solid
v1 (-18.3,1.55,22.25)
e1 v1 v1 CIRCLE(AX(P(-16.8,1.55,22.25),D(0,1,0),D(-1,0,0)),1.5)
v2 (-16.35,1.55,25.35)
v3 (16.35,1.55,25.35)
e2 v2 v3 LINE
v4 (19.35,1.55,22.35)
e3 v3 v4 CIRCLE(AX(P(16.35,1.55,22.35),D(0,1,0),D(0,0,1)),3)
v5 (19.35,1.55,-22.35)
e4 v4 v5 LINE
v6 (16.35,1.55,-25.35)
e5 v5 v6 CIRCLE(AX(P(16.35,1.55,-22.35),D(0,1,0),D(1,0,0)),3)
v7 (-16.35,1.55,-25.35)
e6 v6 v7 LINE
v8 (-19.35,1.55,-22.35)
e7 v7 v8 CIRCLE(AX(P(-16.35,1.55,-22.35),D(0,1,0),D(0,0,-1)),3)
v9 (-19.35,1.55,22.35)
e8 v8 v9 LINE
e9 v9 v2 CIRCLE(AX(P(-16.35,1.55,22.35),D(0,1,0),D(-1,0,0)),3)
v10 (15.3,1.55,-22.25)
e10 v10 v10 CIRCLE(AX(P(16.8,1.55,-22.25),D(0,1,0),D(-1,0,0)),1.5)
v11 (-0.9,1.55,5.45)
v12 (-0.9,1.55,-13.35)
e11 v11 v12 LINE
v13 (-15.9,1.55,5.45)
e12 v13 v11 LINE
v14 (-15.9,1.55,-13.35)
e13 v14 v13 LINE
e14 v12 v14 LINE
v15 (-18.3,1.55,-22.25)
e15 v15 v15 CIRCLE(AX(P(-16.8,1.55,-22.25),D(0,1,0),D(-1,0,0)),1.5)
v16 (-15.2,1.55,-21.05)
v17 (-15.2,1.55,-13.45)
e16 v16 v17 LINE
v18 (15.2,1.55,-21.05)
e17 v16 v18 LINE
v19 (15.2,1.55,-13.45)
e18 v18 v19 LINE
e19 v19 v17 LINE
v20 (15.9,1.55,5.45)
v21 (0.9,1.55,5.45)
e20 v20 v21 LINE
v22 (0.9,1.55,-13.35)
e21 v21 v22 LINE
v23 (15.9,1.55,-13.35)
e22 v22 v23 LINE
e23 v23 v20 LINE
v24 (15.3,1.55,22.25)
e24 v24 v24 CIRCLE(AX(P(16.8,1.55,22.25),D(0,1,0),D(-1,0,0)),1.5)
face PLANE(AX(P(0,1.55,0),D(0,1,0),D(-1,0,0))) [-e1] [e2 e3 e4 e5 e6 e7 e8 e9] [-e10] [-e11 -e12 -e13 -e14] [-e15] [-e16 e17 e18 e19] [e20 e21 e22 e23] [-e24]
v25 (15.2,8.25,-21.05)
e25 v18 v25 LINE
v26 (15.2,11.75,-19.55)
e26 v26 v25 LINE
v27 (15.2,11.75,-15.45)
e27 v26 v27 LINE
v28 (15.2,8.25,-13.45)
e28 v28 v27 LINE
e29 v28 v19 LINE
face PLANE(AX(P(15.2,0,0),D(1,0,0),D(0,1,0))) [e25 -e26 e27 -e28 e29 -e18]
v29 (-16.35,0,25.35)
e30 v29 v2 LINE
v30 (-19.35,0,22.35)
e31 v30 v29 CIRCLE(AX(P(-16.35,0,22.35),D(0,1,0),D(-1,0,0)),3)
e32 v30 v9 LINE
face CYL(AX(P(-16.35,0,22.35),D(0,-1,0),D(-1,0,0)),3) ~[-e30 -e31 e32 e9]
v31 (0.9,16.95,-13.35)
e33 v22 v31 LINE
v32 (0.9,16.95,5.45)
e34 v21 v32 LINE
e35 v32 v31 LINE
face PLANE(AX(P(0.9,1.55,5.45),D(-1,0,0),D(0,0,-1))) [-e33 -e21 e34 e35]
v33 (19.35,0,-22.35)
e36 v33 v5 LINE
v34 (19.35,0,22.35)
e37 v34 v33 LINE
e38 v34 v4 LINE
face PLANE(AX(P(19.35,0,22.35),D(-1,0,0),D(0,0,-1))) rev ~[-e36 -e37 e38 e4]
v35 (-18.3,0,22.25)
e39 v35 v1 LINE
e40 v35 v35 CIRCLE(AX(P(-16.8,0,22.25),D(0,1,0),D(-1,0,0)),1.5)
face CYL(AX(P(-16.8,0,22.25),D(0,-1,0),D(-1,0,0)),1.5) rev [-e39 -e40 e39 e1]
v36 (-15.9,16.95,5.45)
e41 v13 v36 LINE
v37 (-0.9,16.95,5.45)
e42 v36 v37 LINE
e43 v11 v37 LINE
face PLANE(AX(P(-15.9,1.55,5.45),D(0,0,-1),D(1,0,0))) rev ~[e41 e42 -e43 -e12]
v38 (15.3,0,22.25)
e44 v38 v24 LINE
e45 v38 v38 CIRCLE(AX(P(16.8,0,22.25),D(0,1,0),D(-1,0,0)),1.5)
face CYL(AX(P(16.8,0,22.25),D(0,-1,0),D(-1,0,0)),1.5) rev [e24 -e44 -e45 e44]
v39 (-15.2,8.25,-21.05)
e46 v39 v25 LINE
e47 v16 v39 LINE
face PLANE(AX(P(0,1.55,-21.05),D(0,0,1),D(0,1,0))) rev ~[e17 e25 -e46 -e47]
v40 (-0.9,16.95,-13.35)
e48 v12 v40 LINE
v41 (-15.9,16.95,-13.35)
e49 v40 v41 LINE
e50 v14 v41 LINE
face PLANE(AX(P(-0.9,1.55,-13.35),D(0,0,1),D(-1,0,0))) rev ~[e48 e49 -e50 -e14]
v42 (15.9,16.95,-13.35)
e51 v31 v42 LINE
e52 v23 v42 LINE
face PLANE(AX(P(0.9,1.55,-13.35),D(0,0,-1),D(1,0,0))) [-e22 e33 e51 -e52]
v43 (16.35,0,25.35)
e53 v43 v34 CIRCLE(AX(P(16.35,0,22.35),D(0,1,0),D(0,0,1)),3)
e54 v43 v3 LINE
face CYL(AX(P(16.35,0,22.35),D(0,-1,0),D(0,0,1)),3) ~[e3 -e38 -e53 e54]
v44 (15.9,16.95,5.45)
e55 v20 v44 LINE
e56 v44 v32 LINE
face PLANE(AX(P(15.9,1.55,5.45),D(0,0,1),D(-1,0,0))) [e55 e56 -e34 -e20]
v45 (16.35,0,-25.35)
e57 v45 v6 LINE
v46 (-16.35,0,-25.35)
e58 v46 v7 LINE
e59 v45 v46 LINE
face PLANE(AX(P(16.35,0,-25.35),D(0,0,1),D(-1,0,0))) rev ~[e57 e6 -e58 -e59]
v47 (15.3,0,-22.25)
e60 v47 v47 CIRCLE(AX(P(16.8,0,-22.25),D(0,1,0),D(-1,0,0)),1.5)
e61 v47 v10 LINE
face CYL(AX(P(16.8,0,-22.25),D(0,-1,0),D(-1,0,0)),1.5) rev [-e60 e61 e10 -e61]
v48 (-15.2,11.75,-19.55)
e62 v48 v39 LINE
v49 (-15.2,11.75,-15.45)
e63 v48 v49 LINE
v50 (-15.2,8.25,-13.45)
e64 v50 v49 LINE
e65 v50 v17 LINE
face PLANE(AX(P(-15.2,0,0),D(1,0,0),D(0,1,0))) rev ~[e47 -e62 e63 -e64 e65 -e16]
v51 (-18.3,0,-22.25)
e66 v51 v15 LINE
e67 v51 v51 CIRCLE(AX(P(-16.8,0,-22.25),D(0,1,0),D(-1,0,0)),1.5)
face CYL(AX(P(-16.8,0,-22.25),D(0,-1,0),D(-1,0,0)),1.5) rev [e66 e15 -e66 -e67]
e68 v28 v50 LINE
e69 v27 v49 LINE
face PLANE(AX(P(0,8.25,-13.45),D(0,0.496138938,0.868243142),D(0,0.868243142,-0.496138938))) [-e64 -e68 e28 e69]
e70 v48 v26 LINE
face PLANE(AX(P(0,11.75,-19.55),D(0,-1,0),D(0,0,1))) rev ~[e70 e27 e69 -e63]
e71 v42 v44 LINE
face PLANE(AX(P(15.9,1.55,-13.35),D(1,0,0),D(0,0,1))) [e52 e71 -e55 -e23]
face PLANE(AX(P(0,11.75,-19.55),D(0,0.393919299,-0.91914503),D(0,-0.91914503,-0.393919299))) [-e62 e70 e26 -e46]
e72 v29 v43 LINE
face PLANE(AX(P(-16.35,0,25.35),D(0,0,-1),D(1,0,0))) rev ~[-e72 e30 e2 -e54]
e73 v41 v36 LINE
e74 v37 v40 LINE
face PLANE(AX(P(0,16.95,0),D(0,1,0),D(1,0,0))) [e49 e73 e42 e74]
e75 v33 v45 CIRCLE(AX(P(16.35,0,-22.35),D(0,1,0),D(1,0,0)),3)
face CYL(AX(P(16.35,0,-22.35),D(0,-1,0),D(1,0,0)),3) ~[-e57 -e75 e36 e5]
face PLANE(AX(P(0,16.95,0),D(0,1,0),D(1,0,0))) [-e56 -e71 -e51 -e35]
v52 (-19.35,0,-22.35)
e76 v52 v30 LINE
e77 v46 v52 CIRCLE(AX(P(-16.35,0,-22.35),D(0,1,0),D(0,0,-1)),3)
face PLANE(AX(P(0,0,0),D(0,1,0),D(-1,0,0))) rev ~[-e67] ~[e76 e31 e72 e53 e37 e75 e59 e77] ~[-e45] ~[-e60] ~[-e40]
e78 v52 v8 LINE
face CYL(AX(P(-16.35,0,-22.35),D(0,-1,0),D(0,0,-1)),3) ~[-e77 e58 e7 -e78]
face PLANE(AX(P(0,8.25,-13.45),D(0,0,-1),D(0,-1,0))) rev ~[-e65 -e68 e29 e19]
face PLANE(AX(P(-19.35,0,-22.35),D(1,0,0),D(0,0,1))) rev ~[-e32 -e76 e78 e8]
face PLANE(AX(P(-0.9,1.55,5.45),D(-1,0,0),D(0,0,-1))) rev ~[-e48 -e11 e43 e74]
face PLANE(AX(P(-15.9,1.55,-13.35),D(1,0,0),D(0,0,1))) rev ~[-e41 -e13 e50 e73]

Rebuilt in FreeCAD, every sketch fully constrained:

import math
import FreeCAD as App
import Part
import Sketcher

V = App.Vector


def add_polygon(sketch, points):
    """Adds a closed chain of lines whose ends are joined by coincident constraints."""
    first, n = sketch.GeometryCount, len(points)
    for a, b in zip(points, points[1:] + points[:1]):
        sketch.addGeometry(Part.LineSegment(App.Vector(*a, 0), App.Vector(*b, 0)), False)
    for i in range(n):
        sketch.addConstraint(Sketcher.Constraint("Coincident", first + i, 2, first + (i + 1) % n, 1))

doc = App.newDocument("Part")
body = doc.addObject("PartDesign::Body", "Body")

# Sketch on XZ plane
sketch1 = doc.addObject("Sketcher::SketchObject", "Sketch")
body.addObject(sketch1)
sketch1.AttachmentSupport = (doc.XZ_Plane, [""])
sketch1.MapMode = "FlatFace"
sketch1.addGeometry([
    Part.ArcOfCircle(Part.Circle(V(16.4, -22.4, 0), V(0, 0, 1), 3), math.radians(-90), math.radians(0)),  # 0
    Part.LineSegment(V(16.4, -25.4, 0), V(-16.4, -25.4, 0)),  # 1
    Part.ArcOfCircle(Part.Circle(V(-16.4, -22.4, 0), V(0, 0, 1), 3), math.radians(180), math.radians(270)),  # 2
    Part.LineSegment(V(-19.4, -22.4, 0), V(-19.4, 22.4, 0)),  # 3
    Part.ArcOfCircle(Part.Circle(V(-16.4, 22.4, 0), V(0, 0, 1), 3), math.radians(90), math.radians(180)),  # 4
    Part.LineSegment(V(-16.4, 25.4, 0), V(16.4, 25.4, 0)),  # 5
    Part.ArcOfCircle(Part.Circle(V(16.4, 22.4, 0), V(0, 0, 1), 3), math.radians(0), math.radians(90)),  # 6
    Part.LineSegment(V(19.4, 22.4, 0), V(19.4, -22.4, 0)),  # 7
    Part.Circle(V(16.8, -22.2, 0), V(0, 0, 1), 1.5),  # 8
    Part.Circle(V(-16.8, -22.2, 0), V(0, 0, 1), 1.5),  # 9
    Part.Circle(V(16.8, 22.2, 0), V(0, 0, 1), 1.5),  # 10
    Part.Circle(V(-16.8, 22.2, 0), V(0, 0, 1), 1.5),  # 11
], False)
sketch1.addConstraint([
    Sketcher.Constraint("Tangent", 0, 1, 1, 1),
    Sketcher.Constraint("Tangent", 1, 2, 2, 2),
    Sketcher.Constraint("Tangent", 2, 1, 3, 1),
    Sketcher.Constraint("Tangent", 3, 2, 4, 2),
    Sketcher.Constraint("Tangent", 4, 1, 5, 1),
    Sketcher.Constraint("Tangent", 5, 2, 6, 2),
    Sketcher.Constraint("Tangent", 6, 1, 7, 1),
    Sketcher.Constraint("Tangent", 7, 2, 0, 2),
    Sketcher.Constraint("Horizontal", 1),
    Sketcher.Constraint("Vertical", 3),
    Sketcher.Constraint("Horizontal", 5),
    Sketcher.Constraint("Vertical", 7),
    Sketcher.Constraint("Equal", 0, 2),
    Sketcher.Constraint("Equal", 2, 4),
    Sketcher.Constraint("Equal", 4, 6),
    Sketcher.Constraint("Equal", 8, 9),
    Sketcher.Constraint("Equal", 9, 10),
    Sketcher.Constraint("Equal", 10, 11),
    Sketcher.Constraint("Symmetric", 0, 3, 4, 3, -1, 1),
    Sketcher.Constraint("Symmetric", 9, 3, 10, 3, -1, 1),
    Sketcher.Constraint("Symmetric", 8, 3, 11, 3, -1, 1),
    Sketcher.Constraint("Symmetric", 8, 3, 9, 3, -2),
    Sketcher.Constraint("Diameter", 8, 3.0),
    Sketcher.Constraint("Radius", 0, 3.0),
    Sketcher.Constraint("DistanceX", 9, 3, 8, 3, 33.6),
    Sketcher.Constraint("DistanceY", 8, 3, 10, 3, 44.5),
    Sketcher.Constraint("DistanceX", 1, 2, 1, 1, 32.7),
    Sketcher.Constraint("DistanceY", 3, 1, 3, 2, 44.7),
])
pad1 = doc.addObject("PartDesign::Pad", "Pad")
body.addObject(pad1)
pad1.Profile = sketch1
pad1.Length = 1.55
pad1.Reversed = True

# Sketch on XZ plane
sketch2 = doc.addObject("Sketcher::SketchObject", "Sketch001")
body.addObject(sketch2)
sketch2.AttachmentSupport = (doc.XZ_Plane, [""])
sketch2.MapMode = "FlatFace"
sketch2.AttachmentOffset = App.Placement(V(0, 0, -1.55), App.Rotation())
add_polygon(sketch2, [(-16, -13), (-16, 5), (-1, 5), (-1, -13)])  # lines 0-3
add_polygon(sketch2, [(1, 5), (16, 5), (16, -13), (1, -13)])  # lines 4-7
sketch2.addConstraint([
    Sketcher.Constraint("Vertical", 0),
    Sketcher.Constraint("Horizontal", 1),
    Sketcher.Constraint("Vertical", 2),
    Sketcher.Constraint("Horizontal", 3),
    Sketcher.Constraint("Horizontal", 4),
    Sketcher.Constraint("Vertical", 5),
    Sketcher.Constraint("Horizontal", 6),
    Sketcher.Constraint("Vertical", 7),
    Sketcher.Constraint("Symmetric", 0, 2, 4, 2, -2),
    Sketcher.Constraint("Symmetric", 2, 2, 6, 2, -2),
    Sketcher.Constraint("DistanceX", 1, 1, 1, 2, 15.0),
    Sketcher.Constraint("DistanceY", 0, 1, 0, 2, 18.8),
    Sketcher.Constraint("DistanceX", 1, 2, -1, 1, 0.9),
    Sketcher.Constraint("DistanceY", -1, 1, 0, 2, 5.45),
])
pad2 = doc.addObject("PartDesign::Pad", "Pad001")
body.addObject(pad2)
pad2.Profile = sketch2
pad2.Length = 15.4
pad2.Reversed = True

# Sketch on YZ plane
sketch3 = doc.addObject("Sketcher::SketchObject", "Sketch002")
body.addObject(sketch3)
sketch3.AttachmentSupport = (doc.YZ_Plane, [""])
sketch3.MapMode = "FlatFace"
add_polygon(sketch3, [(1.6, -13.4), (1.6, -21.1), (8.2, -21.1), (11.8, -19.6), (11.8, -15.4), (8.2, -13.4)])  # lines 0-5
sketch3.addConstraint([
    Sketcher.Constraint("Vertical", 0),
    Sketcher.Constraint("Horizontal", 1),
    Sketcher.Constraint("Vertical", 3),
    Sketcher.Constraint("Horizontal", 5),
    Sketcher.Constraint("Vertical", 1, 2, 4, 2),
    Sketcher.Constraint("DistanceY", 0, 2, 0, 1, 7.6),
    Sketcher.Constraint("DistanceY", 3, 2, 4, 2, 2.0),
    Sketcher.Constraint("DistanceX", 1, 2, 2, 2, 3.5),
    Sketcher.Constraint("DistanceY", 1, 2, 2, 2, 1.5),
    Sketcher.Constraint("DistanceX", 0, 2, 2, 2, 10.2),
    Sketcher.Constraint("DistanceX", -1, 1, 0, 2, 1.55),
    Sketcher.Constraint("DistanceY", 0, 2, -1, 1, 21.05),
])
pad3 = doc.addObject("PartDesign::Pad", "Pad002")
body.addObject(pad3)
pad3.Profile = sketch3
pad3.Length = 30.4
pad3.Midplane = True

doc.recompute()
